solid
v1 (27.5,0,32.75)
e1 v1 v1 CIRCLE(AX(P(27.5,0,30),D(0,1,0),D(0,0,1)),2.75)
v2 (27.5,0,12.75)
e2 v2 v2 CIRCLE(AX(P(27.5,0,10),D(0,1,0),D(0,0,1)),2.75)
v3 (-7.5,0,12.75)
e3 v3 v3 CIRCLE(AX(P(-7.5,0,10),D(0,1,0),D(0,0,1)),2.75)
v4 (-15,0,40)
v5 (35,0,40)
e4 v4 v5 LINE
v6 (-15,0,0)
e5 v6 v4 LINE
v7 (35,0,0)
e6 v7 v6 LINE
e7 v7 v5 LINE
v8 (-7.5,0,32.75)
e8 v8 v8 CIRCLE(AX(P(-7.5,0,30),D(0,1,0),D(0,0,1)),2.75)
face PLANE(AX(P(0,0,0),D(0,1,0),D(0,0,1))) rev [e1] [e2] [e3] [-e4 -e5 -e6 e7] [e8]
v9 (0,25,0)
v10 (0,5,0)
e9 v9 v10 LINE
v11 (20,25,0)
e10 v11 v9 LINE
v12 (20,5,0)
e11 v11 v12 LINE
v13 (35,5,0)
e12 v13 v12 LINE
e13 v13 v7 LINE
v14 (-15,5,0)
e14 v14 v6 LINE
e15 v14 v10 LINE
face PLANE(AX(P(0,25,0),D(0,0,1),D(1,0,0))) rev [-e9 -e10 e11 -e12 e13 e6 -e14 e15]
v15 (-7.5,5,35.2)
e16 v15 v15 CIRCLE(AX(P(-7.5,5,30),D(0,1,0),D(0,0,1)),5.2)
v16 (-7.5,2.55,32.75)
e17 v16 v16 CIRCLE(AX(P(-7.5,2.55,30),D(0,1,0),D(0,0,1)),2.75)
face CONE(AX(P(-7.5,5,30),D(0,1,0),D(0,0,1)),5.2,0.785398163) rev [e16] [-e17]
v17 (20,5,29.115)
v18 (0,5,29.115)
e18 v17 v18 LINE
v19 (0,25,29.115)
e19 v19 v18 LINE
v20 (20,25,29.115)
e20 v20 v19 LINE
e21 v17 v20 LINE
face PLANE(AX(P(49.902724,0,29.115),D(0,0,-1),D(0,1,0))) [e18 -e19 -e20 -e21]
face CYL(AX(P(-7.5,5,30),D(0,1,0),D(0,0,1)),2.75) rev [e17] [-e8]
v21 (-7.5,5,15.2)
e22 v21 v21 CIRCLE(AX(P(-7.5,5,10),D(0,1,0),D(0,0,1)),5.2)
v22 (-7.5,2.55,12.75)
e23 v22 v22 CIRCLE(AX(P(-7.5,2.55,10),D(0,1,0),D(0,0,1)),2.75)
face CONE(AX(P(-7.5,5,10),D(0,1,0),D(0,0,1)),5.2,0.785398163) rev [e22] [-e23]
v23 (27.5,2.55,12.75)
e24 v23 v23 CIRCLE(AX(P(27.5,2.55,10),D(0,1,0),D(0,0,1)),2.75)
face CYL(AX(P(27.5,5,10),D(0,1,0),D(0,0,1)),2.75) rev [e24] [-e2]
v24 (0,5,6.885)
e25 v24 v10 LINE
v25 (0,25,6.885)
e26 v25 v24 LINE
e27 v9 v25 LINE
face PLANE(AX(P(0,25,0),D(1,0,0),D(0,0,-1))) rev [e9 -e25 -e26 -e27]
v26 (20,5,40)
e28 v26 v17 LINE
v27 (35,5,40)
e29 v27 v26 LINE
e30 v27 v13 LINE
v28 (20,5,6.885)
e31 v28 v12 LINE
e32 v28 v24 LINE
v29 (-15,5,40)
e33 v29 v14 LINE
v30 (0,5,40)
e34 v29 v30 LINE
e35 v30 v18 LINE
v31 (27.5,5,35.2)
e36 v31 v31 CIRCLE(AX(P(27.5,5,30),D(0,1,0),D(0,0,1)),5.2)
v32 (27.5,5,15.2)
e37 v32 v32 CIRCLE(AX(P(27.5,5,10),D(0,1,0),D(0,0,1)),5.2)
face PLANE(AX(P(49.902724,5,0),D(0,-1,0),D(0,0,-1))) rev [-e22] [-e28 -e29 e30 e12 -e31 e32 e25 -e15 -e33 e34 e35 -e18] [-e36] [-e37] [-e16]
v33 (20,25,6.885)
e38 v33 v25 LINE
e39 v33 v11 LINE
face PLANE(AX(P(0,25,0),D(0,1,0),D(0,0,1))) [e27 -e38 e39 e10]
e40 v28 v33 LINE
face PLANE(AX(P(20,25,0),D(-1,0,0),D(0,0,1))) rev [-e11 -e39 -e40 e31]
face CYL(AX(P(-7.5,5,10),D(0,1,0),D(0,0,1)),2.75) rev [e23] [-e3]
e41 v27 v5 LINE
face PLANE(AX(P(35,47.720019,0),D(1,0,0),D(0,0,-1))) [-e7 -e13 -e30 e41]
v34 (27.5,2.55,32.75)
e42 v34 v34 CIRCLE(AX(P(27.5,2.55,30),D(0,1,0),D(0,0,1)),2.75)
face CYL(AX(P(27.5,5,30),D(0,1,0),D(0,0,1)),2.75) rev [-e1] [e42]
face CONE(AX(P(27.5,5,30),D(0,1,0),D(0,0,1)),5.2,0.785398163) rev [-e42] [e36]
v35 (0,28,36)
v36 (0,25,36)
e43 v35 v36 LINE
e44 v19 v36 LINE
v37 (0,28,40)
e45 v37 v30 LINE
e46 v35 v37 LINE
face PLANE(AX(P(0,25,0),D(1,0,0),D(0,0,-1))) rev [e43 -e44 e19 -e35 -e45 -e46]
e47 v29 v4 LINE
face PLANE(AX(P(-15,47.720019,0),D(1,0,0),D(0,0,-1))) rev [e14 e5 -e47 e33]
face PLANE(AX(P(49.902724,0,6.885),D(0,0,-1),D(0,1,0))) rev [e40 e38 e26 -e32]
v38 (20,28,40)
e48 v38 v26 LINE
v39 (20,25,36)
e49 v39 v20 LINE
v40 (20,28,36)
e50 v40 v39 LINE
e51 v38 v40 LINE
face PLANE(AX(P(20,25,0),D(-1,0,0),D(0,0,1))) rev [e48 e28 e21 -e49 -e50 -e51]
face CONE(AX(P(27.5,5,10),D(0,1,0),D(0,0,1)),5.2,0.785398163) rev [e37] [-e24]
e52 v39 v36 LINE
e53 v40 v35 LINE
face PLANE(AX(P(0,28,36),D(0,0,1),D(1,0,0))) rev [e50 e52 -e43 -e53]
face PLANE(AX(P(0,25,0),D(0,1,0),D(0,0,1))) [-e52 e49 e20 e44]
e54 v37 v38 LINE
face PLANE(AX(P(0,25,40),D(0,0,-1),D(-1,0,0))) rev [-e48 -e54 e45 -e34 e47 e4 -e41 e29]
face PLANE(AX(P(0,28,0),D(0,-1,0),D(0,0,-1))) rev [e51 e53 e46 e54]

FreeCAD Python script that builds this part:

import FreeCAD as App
import Part
import Sketcher
Q = App.Units.Quantity


def add_polygon(sketch, points):
    """Adds a closed chain of lines whose ends are joined by coincident constraints."""
    first, n = sketch.GeometryCount, len(points)
    for a, b in zip(points, points[1:] + points[:1]):
        sketch.addGeometry(Part.LineSegment(App.Vector(*a, 0), App.Vector(*b, 0)), False)
    for i in range(n):
        sketch.addConstraint(Sketcher.Constraint("Coincident", first + i, 2, first + (i + 1) % n, 1))

doc = App.newDocument("Part")
body = doc.addObject("PartDesign::Body", "Body")

# Sketch on XZ plane
sketch1 = body.newObject("Sketcher::SketchObject", "Sketch")
sketch1.AttachmentSupport = (doc.getObject("XZ_Plane"), [""])
sketch1.MapMode = "FlatFace"
add_polygon(sketch1, [(0, 0), (0, 40), (20, 40), (20, 0)])  # lines 0-3
sketch1.addConstraint(Sketcher.Constraint("Vertical", 0))
sketch1.addConstraint(Sketcher.Constraint("Horizontal", 1))
sketch1.addConstraint(Sketcher.Constraint("Vertical", 2))
sketch1.addConstraint(Sketcher.Constraint("Horizontal", 3))
sketch1.addConstraint(Sketcher.Constraint("Coincident", 3, 2, -1, 1))
sketch1.addConstraint(Sketcher.Constraint("DistanceX", 1, 1, 1, 2, 20.0))
sketch1.addConstraint(Sketcher.Constraint("DistanceY", 0, 1, 0, 2, 40.0))
pad1 = body.newObject("PartDesign::Pad", "Pad")
pad1.Profile = sketch1
pad1.Length = 25
pad1.Reversed = True

# Sketch on XZ plane
sketch2 = body.newObject("Sketcher::SketchObject", "Sketch001")
sketch2.AttachmentSupport = (doc.getObject("XZ_Plane"), [""])
sketch2.MapMode = "FlatFace"
sketch2.AttachmentOffset = App.Placement(App.Vector(0, 0, -25), App.Rotation())
add_polygon(sketch2, [(0, 36), (0, 40), (20, 40), (20, 36)])  # lines 0-3
sketch2.addConstraint(Sketcher.Constraint("Vertical", 0))
sketch2.addConstraint(Sketcher.Constraint("Horizontal", 1))
sketch2.addConstraint(Sketcher.Constraint("Vertical", 2))
sketch2.addConstraint(Sketcher.Constraint("Horizontal", 3))
sketch2.addConstraint(Sketcher.Constraint("PointOnObject", 0, 2, -2))
sketch2.addConstraint(Sketcher.Constraint("DistanceX", 1, 1, 1, 2, 20.0))
sketch2.addConstraint(Sketcher.Constraint("DistanceY", 0, 1, 0, 2, 4.0))
sketch2.addConstraint(Sketcher.Constraint("DistanceY", -1, 1, 0, 2, 40.0))
pad2 = body.newObject("PartDesign::Pad", "Pad001")
pad2.Profile = sketch2
pad2.Length = 3
pad2.Reversed = True

# Sketch on YZ plane
sketch3 = body.newObject("Sketcher::SketchObject", "Sketch002")
sketch3.AttachmentSupport = (doc.getObject("YZ_Plane"), [""])
sketch3.MapMode = "FlatFace"
add_polygon(sketch3, [(25, 7), (5, 7), (5, 29), (25, 29)])  # lines 0-3
sketch3.addConstraint(Sketcher.Constraint("Horizontal", 0))
sketch3.addConstraint(Sketcher.Constraint("Vertical", 1))
sketch3.addConstraint(Sketcher.Constraint("Horizontal", 2))
sketch3.addConstraint(Sketcher.Constraint("Vertical", 3))
sketch3.addConstraint(Sketcher.Constraint("DistanceX", 0, 2, 0, 1, 20.0))
sketch3.addConstraint(Sketcher.Constraint("DistanceX", -1, 1, 0, 2, 5.0))
sketch3.addConstraint(Sketcher.Constraint("DistanceY", 1, 1, 1, 2, 22.23))
sketch3.addConstraint(Sketcher.Constraint("DistanceY", -1, 1, 0, 2, 6.885))
pocket1 = body.newObject("PartDesign::Pocket", "Pocket")
pocket1.Profile = sketch3
pocket1.Length = 20
pocket1.Reversed = True

# Sketch on XZ plane
sketch4 = body.newObject("Sketcher::SketchObject", "Sketch003")
sketch4.AttachmentSupport = (doc.getObject("XZ_Plane"), [""])
sketch4.MapMode = "FlatFace"
add_polygon(sketch4, [(-15, 0), (-15, 40), (0, 40), (0, 0)])  # lines 0-3
sketch4.addConstraint(Sketcher.Constraint("Vertical", 0))
sketch4.addConstraint(Sketcher.Constraint("Horizontal", 1))
sketch4.addConstraint(Sketcher.Constraint("Vertical", 2))
sketch4.addConstraint(Sketcher.Constraint("Horizontal", 3))
sketch4.addConstraint(Sketcher.Constraint("Coincident", 2, 2, -1, 1))
sketch4.addConstraint(Sketcher.Constraint("DistanceX", 1, 1, 1, 2, 15.0))
sketch4.addConstraint(Sketcher.Constraint("DistanceY", 0, 1, 0, 2, 40.0))
pad3 = body.newObject("PartDesign::Pad", "Pad002")
pad3.Profile = sketch4
pad3.Length = 5
pad3.Reversed = True

# Sketch on YZ plane
sketch5 = body.newObject("Sketcher::SketchObject", "Sketch004")
sketch5.AttachmentSupport = (doc.getObject("YZ_Plane"), [""])
sketch5.MapMode = "FlatFace"
sketch5.AttachmentOffset = App.Placement(App.Vector(0, 0, -7.5), App.Rotation())
add_polygon(sketch5, [(0, 10), (5, 10), (5, 15.2), (2.5, 12.8), (0, 12.8)])  # lines 0-4
sketch5.addGeometry(Part.LineSegment(App.Vector(5, 10, 0), App.Vector(0, 10, 0)), True)  # axis
sketch5.addConstraint(Sketcher.Constraint("Horizontal", 0))
sketch5.addConstraint(Sketcher.Constraint("Vertical", 1))
sketch5.addConstraint(Sketcher.Constraint("Horizontal", 3))
sketch5.addConstraint(Sketcher.Constraint("Vertical", 4))
sketch5.addConstraint(Sketcher.Constraint("Horizontal", 5))
sketch5.addConstraint(Sketcher.Constraint("Coincident", 5, 1, 0, 2))
sketch5.addConstraint(Sketcher.Constraint("PointOnObject", 3, 2, -2))
sketch5.addConstraint(Sketcher.Constraint("PointOnObject", 5, 2, -2))
sketch5.addConstraint(Sketcher.Constraint("DistanceX", 0, 1, 0, 2, 5.0))
sketch5.addConstraint(Sketcher.Constraint("Angle", 2, Q("-135 deg")))
sketch5.addConstraint(Sketcher.Constraint("DistanceY", 1, 1, 1, 2, 5.2))
sketch5.addConstraint(Sketcher.Constraint("DistanceY", -1, 1, 0, 2, 10.0))
sketch5.addConstraint(Sketcher.Constraint("DistanceX", 3, 2, 3, 1, 2.55))
groove = body.newObject("PartDesign::Groove", "Groove")
groove.Profile = sketch5
groove.ReferenceAxis = (sketch5, ["Axis0"])
groove.Angle = 360
doc.recompute()

linearpattern = body.newObject("PartDesign::LinearPattern", "LinearPattern")
linearpattern.Originals = [groove]
linearpattern.Direction = (doc.getObject("Z_Axis"), [""])
linearpattern.Mode = "offset"
linearpattern.Offset = 20
linearpattern.Occurrences = 2
body.Tip = linearpattern
doc.recompute()

datumplane = body.newObject("PartDesign::Plane", "DatumPlane")
datumplane.AttachmentSupport = (doc.getObject("YZ_Plane"), [""])
datumplane.MapMode = "FlatFace"
datumplane.AttachmentOffset = App.Placement(App.Vector(0, 0, 10), App.Rotation())
mirrored = body.newObject("PartDesign::Mirrored", "Mirrored")
mirrored.Originals = [pad3, groove]
mirrored.MirrorPlane = (datumplane, [""])
body.Tip = mirrored

# Sketch on YZ plane
sketch6 = body.newObject("Sketcher::SketchObject", "Sketch005")
sketch6.AttachmentSupport = (doc.getObject("YZ_Plane"), [""])
sketch6.MapMode = "FlatFace"
sketch6.AttachmentOffset = App.Placement(App.Vector(0, 0, 27.5), App.Rotation())
add_polygon(sketch6, [(5, 30), (0, 30), (0, 32.8), (2.5, 32.8), (5, 35.2)])  # lines 0-4
sketch6.addGeometry(Part.LineSegment(App.Vector(0, 30, 0), App.Vector(5, 30, 0)), True)  # axis
sketch6.addConstraint(Sketcher.Constraint("Horizontal", 0))
sketch6.addConstraint(Sketcher.Constraint("Vertical", 1))
sketch6.addConstraint(Sketcher.Constraint("Horizontal", 2))
sketch6.addConstraint(Sketcher.Constraint("Vertical", 4))
sketch6.addConstraint(Sketcher.Constraint("Horizontal", 5))
sketch6.addConstraint(Sketcher.Constraint("Coincident", 5, 1, 0, 2))
sketch6.addConstraint(Sketcher.Constraint("PointOnObject", 0, 2, -2))
sketch6.addConstraint(Sketcher.Constraint("Vertical", 3, 2, 5, 2))
sketch6.addConstraint(Sketcher.Constraint("DistanceX", 0, 2, 0, 1, 5.0))
sketch6.addConstraint(Sketcher.Constraint("Angle", 3, Q("45 deg")))
sketch6.addConstraint(Sketcher.Constraint("DistanceY", 4, 2, 4, 1, 5.2))
sketch6.addConstraint(Sketcher.Constraint("DistanceY", -1, 1, 0, 2, 30.0))
sketch6.addConstraint(Sketcher.Constraint("DistanceX", 2, 1, 2, 2, 2.55))
groove2 = body.newObject("PartDesign::Groove", "Groove001")
groove2.Profile = sketch6
groove2.ReferenceAxis = (sketch6, ["Axis0"])
groove2.Angle = 360

doc.recompute()
